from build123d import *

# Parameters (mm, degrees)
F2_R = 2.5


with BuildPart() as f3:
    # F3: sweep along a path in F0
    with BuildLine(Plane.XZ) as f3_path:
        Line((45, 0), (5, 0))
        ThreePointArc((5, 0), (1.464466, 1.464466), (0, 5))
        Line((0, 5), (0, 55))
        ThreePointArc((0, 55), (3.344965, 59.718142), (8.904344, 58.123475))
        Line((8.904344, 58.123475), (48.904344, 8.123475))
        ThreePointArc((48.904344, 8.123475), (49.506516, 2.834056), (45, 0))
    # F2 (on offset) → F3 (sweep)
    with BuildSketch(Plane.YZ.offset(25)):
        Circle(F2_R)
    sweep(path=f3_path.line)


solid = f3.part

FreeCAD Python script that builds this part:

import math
import FreeCAD as App
import Part
import Sketcher
Q = App.Units.Quantity

doc = App.newDocument("Part")
body = doc.addObject("PartDesign::Body", "Body")

# Sketch on YZ plane
sketch1 = doc.addObject("Sketcher::SketchObject", "Sketch")
body.addObject(sketch1)
sketch1.AttachmentSupport = (doc.YZ_Plane, [""])
sketch1.MapMode = "FlatFace"
sketch1.AttachmentOffset = App.Placement(App.Vector(0, 0, 25), App.Rotation())
sketch1.addGeometry(Part.Circle(App.Vector(0, 0, 0), App.Vector(0, 0, 1), 2.5), False)
sketch1.addConstraint([
    Sketcher.Constraint("Coincident", 0, 3, -1, 1),
    Sketcher.Constraint("Diameter", 0, Q("5 mm")),
])

# Sketch on XZ plane
sketch2 = doc.addObject("Sketcher::SketchObject", "Sketch001")
body.addObject(sketch2)
sketch2.AttachmentSupport = (doc.XZ_Plane, [""])
sketch2.MapMode = "FlatFace"
sketch2.addGeometry([
    Part.LineSegment(App.Vector(45, 0, 0), App.Vector(5, 0, 0)),  # 0
    Part.ArcOfCircle(Part.Circle(App.Vector(5, 5, 0), App.Vector(0, 0, 1), 5), math.radians(180), math.radians(270)),  # 1
    Part.LineSegment(App.Vector(0, 5, 0), App.Vector(0, 55, 0)),  # 2
    Part.ArcOfCircle(Part.Circle(App.Vector(5, 55, 0), App.Vector(0, 0, 1), 5), math.radians(39), math.radians(180)),  # 3
    Part.LineSegment(App.Vector(8.9, 58.1, 0), App.Vector(48.9, 8.1, 0)),  # 4
    Part.ArcOfCircle(Part.Circle(App.Vector(45, 5, 0), App.Vector(0, 0, 1), 5), math.radians(-90), math.radians(39)),  # 5
], False)
sketch2.addConstraint([
    Sketcher.Constraint("Tangent", 0, 2, 1, 2),
    Sketcher.Constraint("Tangent", 1, 1, 2, 1),
    Sketcher.Constraint("Tangent", 2, 2, 3, 2),
    Sketcher.Constraint("Tangent", 3, 1, 4, 1),
    Sketcher.Constraint("Tangent", 4, 2, 5, 2),
    Sketcher.Constraint("Tangent", 5, 1, 0, 1),
    Sketcher.Constraint("Horizontal", 0),
    Sketcher.Constraint("Vertical", 2),
    Sketcher.Constraint("Equal", 1, 3),
    Sketcher.Constraint("Equal", 3, 5),
    Sketcher.Constraint("PointOnObject", 0, 2, -1),
    Sketcher.Constraint("PointOnObject", 1, 1, -2),
    Sketcher.Constraint("Radius", 1, Q("5 mm")),
    Sketcher.Constraint("DistanceX", 0, 2, 0, 1, Q("40 mm")),
    Sketcher.Constraint("DistanceY", 2, 1, 2, 2, Q("50 mm")),
])
doc.recompute()

additivepipe = doc.addObject("PartDesign::AdditivePipe", "AdditivePipe")
body.addObject(additivepipe)
additivepipe.Profile = sketch1
additivepipe.Spine = (sketch2, ["Edge1", "Edge2", "Edge3", "Edge4", "Edge5", "Edge6"])

doc.recompute()
